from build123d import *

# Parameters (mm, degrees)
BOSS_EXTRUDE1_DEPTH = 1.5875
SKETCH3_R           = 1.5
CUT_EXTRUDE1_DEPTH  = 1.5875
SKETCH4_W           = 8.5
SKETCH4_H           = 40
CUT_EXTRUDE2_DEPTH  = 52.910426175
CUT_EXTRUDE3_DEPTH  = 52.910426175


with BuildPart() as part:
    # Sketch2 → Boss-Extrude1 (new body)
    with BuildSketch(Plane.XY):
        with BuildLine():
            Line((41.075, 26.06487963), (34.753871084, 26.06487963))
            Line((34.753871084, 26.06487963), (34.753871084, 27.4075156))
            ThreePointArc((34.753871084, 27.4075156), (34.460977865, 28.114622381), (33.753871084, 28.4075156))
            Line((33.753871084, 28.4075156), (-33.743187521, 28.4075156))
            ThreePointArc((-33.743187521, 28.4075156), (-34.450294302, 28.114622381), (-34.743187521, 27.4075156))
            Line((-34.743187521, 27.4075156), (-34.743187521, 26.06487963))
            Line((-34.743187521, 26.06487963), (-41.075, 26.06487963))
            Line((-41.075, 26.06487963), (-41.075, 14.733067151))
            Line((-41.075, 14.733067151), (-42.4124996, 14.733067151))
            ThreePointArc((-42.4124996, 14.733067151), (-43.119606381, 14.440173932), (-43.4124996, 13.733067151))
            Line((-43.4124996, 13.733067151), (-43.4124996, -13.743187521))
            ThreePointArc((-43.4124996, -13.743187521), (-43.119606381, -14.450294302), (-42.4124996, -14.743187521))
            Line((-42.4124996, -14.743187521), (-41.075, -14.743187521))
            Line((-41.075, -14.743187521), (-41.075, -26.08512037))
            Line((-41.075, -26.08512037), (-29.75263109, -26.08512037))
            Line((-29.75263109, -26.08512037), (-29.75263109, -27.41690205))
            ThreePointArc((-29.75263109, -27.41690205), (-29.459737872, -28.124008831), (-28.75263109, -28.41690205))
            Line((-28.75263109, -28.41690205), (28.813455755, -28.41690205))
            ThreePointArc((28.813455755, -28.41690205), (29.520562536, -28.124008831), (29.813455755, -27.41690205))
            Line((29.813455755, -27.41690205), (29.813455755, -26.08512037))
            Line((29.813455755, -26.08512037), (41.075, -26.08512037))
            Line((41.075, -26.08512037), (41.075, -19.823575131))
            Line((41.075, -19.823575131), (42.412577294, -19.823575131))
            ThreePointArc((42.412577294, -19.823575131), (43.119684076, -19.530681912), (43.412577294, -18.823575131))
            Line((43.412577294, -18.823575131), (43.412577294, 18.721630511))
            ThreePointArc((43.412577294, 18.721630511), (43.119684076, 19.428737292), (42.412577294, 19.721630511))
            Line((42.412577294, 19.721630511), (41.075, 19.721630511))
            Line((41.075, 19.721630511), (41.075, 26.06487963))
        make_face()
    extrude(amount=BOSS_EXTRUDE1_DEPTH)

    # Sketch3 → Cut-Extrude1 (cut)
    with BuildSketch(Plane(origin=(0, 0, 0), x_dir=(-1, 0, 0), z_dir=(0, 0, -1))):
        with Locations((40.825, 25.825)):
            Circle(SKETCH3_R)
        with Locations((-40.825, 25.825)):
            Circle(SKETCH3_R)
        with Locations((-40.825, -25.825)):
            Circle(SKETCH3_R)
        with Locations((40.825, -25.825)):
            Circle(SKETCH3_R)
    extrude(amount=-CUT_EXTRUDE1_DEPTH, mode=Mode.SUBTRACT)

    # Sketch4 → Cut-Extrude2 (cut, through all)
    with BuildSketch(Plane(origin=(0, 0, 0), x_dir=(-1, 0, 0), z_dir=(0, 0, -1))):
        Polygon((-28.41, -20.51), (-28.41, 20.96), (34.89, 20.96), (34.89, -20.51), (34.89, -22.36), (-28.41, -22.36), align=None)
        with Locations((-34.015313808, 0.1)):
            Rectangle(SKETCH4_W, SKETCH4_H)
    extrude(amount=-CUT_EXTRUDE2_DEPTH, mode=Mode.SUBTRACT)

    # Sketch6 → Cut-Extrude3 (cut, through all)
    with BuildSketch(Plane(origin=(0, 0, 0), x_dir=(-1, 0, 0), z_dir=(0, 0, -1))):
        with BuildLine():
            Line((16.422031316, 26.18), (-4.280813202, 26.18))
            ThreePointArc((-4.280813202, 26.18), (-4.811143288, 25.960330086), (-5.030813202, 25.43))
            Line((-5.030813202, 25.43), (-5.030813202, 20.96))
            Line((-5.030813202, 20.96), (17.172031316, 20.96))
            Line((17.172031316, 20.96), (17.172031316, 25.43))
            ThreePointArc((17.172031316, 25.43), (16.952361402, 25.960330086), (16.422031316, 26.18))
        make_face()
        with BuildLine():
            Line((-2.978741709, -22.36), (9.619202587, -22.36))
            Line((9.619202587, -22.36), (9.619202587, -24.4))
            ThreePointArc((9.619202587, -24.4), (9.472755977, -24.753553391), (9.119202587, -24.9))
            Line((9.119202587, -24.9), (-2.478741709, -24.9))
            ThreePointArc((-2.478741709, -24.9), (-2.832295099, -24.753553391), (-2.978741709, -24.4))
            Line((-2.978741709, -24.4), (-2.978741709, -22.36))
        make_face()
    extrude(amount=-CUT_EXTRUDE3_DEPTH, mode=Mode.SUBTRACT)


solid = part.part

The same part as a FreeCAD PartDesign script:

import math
import FreeCAD as App
import Part
import Sketcher
from FreeCAD import Vector


def add_polygon(sketch, points):
    """Adds a closed chain of lines whose ends are joined by coincident constraints."""
    first, n = sketch.GeometryCount, len(points)
    for a, b in zip(points, points[1:] + points[:1]):
        sketch.addGeometry(Part.LineSegment(App.Vector(*a, 0), App.Vector(*b, 0)), False)
    for i in range(n):
        sketch.addConstraint(Sketcher.Constraint("Coincident", first + i, 2, first + (i + 1) % n, 1))

doc = App.newDocument("Part")
body = doc.addObject("PartDesign::Body", "Body")

sketch1 = body.newObject("Sketcher::SketchObject", "Sketch")
sketch1.AttachmentSupport = (doc.getObject("XY_Plane"), [""])
sketch1.MapMode = "FlatFace"
sketch1.addGeometry([
    Part.LineSegment(Vector(41.1, 26.1, 0), Vector(34.8, 26.1, 0)),
    Part.LineSegment(Vector(34.8, 26.1, 0), Vector(34.8, 27.4, 0)),
    Part.ArcOfCircle(Part.Circle(Vector(33.8, 27.4, 0), Vector(0, 0, 1), 1), math.radians(0), math.radians(90)),
    Part.LineSegment(Vector(33.8, 28.4, 0), Vector(-33.7, 28.4, 0)),
    Part.ArcOfCircle(Part.Circle(Vector(-33.7, 27.4, 0), Vector(0, 0, 1), 1), math.radians(90), math.radians(180)),
    Part.LineSegment(Vector(-34.7, 27.4, 0), Vector(-34.7, 26.1, 0)),
    Part.LineSegment(Vector(-34.7, 26.1, 0), Vector(-41.1, 26.1, 0)),
    Part.LineSegment(Vector(-41.1, 26.1, 0), Vector(-41.1, 14.7, 0)),
    Part.LineSegment(Vector(-41.1, 14.7, 0), Vector(-42.4, 14.7, 0)),
    Part.ArcOfCircle(Part.Circle(Vector(-42.4, 13.7, 0), Vector(0, 0, 1), 1), math.radians(90), math.radians(180)),
    Part.LineSegment(Vector(-43.4, 13.7, 0), Vector(-43.4, -13.7, 0)),
    Part.ArcOfCircle(Part.Circle(Vector(-42.4, -13.7, 0), Vector(0, 0, 1), 1), math.radians(-180), math.radians(-90)),
    Part.LineSegment(Vector(-42.4, -14.7, 0), Vector(-41.1, -14.7, 0)),
    Part.LineSegment(Vector(-41.1, -14.7, 0), Vector(-41.1, -26.1, 0)),
    Part.LineSegment(Vector(-41.1, -26.1, 0), Vector(-29.8, -26.1, 0)),
    Part.LineSegment(Vector(-29.8, -26.1, 0), Vector(-29.8, -27.4, 0)),
    Part.ArcOfCircle(Part.Circle(Vector(-28.8, -27.4, 0), Vector(0, 0, 1), 1), math.radians(180), math.radians(270)),
    Part.LineSegment(Vector(-28.8, -28.4, 0), Vector(28.8, -28.4, 0)),
    Part.ArcOfCircle(Part.Circle(Vector(28.8, -27.4, 0), Vector(0, 0, 1), 1), math.radians(-90), math.radians(0)),
    Part.LineSegment(Vector(29.8, -27.4, 0), Vector(29.8, -26.1, 0)),
    Part.LineSegment(Vector(29.8, -26.1, 0), Vector(41.1, -26.1, 0)),
    Part.LineSegment(Vector(41.1, -26.1, 0), Vector(41.1, -19.8, 0)),
    Part.LineSegment(Vector(41.1, -19.8, 0), Vector(42.4, -19.8, 0)),
    Part.ArcOfCircle(Part.Circle(Vector(42.4, -18.8, 0), Vector(0, 0, 1), 1), math.radians(-90), math.radians(0)),
    Part.LineSegment(Vector(43.4, -18.8, 0), Vector(43.4, 18.7, 0)),
    Part.ArcOfCircle(Part.Circle(Vector(42.4, 18.7, 0), Vector(0, 0, 1), 1), math.radians(0), math.radians(90)),
    Part.LineSegment(Vector(42.4, 19.7, 0), Vector(41.1, 19.7, 0)),
    Part.LineSegment(Vector(41.1, 19.7, 0), Vector(41.1, 26.1, 0)),
], False)
sketch1.addConstraint([
    Sketcher.Constraint("Coincident", 0, 2, 1, 1),
    Sketcher.Constraint("Tangent", 1, 2, 2, 1),
    Sketcher.Constraint("Tangent", 2, 2, 3, 1),
    Sketcher.Constraint("Tangent", 3, 2, 4, 1),
    Sketcher.Constraint("Tangent", 4, 2, 5, 1),
    Sketcher.Constraint("Coincident", 5, 2, 6, 1),
    Sketcher.Constraint("Coincident", 6, 2, 7, 1),
    Sketcher.Constraint("Coincident", 7, 2, 8, 1),
    Sketcher.Constraint("Tangent", 8, 2, 9, 1),
    Sketcher.Constraint("Tangent", 9, 2, 10, 1),
    Sketcher.Constraint("Tangent", 10, 2, 11, 1),
    Sketcher.Constraint("Tangent", 11, 2, 12, 1),
    Sketcher.Constraint("Coincident", 12, 2, 13, 1),
    Sketcher.Constraint("Coincident", 13, 2, 14, 1),
    Sketcher.Constraint("Coincident", 14, 2, 15, 1),
    Sketcher.Constraint("Tangent", 15, 2, 16, 1),
    Sketcher.Constraint("Tangent", 16, 2, 17, 1),
    Sketcher.Constraint("Tangent", 17, 2, 18, 1),
    Sketcher.Constraint("Tangent", 18, 2, 19, 1),
    Sketcher.Constraint("Coincident", 19, 2, 20, 1),
    Sketcher.Constraint("Coincident", 20, 2, 21, 1),
    Sketcher.Constraint("Coincident", 21, 2, 22, 1),
    Sketcher.Constraint("Tangent", 22, 2, 23, 1),
    Sketcher.Constraint("Tangent", 23, 2, 24, 1),
    Sketcher.Constraint("Tangent", 24, 2, 25, 1),
    Sketcher.Constraint("Tangent", 25, 2, 26, 1),
    Sketcher.Constraint("Coincident", 26, 2, 27, 1),
    Sketcher.Constraint("Coincident", 27, 2, 0, 1),
    Sketcher.Constraint("Horizontal", 0),
    Sketcher.Constraint("Vertical", 1),
    Sketcher.Constraint("Horizontal", 3),
    Sketcher.Constraint("Vertical", 5),
    Sketcher.Constraint("Horizontal", 6),
    Sketcher.Constraint("Vertical", 7),
    Sketcher.Constraint("Horizontal", 8),
    Sketcher.Constraint("Vertical", 10),
    Sketcher.Constraint("Horizontal", 12),
    Sketcher.Constraint("Vertical", 13),
    Sketcher.Constraint("Horizontal", 14),
    Sketcher.Constraint("Vertical", 15),
    Sketcher.Constraint("Horizontal", 17),
    Sketcher.Constraint("Vertical", 19),
    Sketcher.Constraint("Horizontal", 20),
    Sketcher.Constraint("Vertical", 21),
    Sketcher.Constraint("Horizontal", 22),
    Sketcher.Constraint("Vertical", 24),
    Sketcher.Constraint("Horizontal", 26),
    Sketcher.Constraint("Vertical", 27),
    Sketcher.Constraint("Equal", 2, 4),
    Sketcher.Constraint("Equal", 4, 9),
    Sketcher.Constraint("Equal", 9, 11),
    Sketcher.Constraint("Equal", 11, 16),
    Sketcher.Constraint("Equal", 16, 18),
    Sketcher.Constraint("Equal", 18, 23),
    Sketcher.Constraint("Equal", 23, 25),
    Sketcher.Constraint("Symmetric", 13, 2, 20, 2, -2),
    Sketcher.Constraint("Symmetric", 6, 2, 27, 2, -2),
    Sketcher.Constraint("Vertical", 7, 2, 12, 2),
    Sketcher.Constraint("Radius", 2, 1.0),
    Sketcher.Constraint("DistanceX", 8, 2, 8, 1, 1.3375),
    Sketcher.Constraint("DistanceX", 6, 2, -1, 1, 41.075),
    Sketcher.Constraint("DistanceX", 0, 2, 0, 1, 6.321129),
    Sketcher.Constraint("DistanceX", 3, 2, 3, 1, 67.497059),
    Sketcher.Constraint("DistanceX", 14, 1, 14, 2, 11.322369),
    Sketcher.Constraint("DistanceY", 15, 2, 15, 1, 1.331782),
    Sketcher.Constraint("DistanceY", 27, 1, 27, 2, 6.343249),
    Sketcher.Constraint("DistanceX", 17, 1, 17, 2, 57.566087),
    Sketcher.Constraint("DistanceX", 22, 1, 22, 2, 1.337577),
    Sketcher.Constraint("DistanceY", 1, 1, 1, 2, 1.342636),
    Sketcher.Constraint("DistanceY", 7, 2, 7, 1, 11.331812),
    Sketcher.Constraint("DistanceY", 10, 2, 10, 1, 27.476255),
    Sketcher.Constraint("DistanceY", 13, 2, 13, 1, 11.341933),
    Sketcher.Constraint("DistanceY", 21, 1, 21, 2, 6.261545),
    Sketcher.Constraint("DistanceY", -1, 1, 25, 3, 18.721631),
])
pad1 = body.newObject("PartDesign::Pad", "Pad")
pad1.Profile = sketch1
pad1.Length = 1.5875

sketch2 = body.newObject("Sketcher::SketchObject", "Sketch001")
sketch2.AttachmentSupport = (doc.getObject("XY_Plane"), [""])
sketch2.MapMode = "FlatFace"
sketch2.addGeometry([
    Part.Circle(Vector(-40.8, 25.8, 0), Vector(0, 0, 1), 1.5),
    Part.Circle(Vector(40.8, 25.8, 0), Vector(0, 0, 1), 1.5),
    Part.Circle(Vector(40.8, -25.8, 0), Vector(0, 0, 1), 1.5),
    Part.Circle(Vector(-40.8, -25.8, 0), Vector(0, 0, 1), 1.5),
], False)
sketch2.addConstraint([
    Sketcher.Constraint("Equal", 0, 1),
    Sketcher.Constraint("Equal", 1, 2),
    Sketcher.Constraint("Equal", 2, 3),
    Sketcher.Constraint("Symmetric", 0, 3, 2, 3, -1, 1),
    Sketcher.Constraint("Symmetric", 1, 3, 3, 3, -1, 1),
    Sketcher.Constraint("Symmetric", 0, 3, 1, 3, -2),
    Sketcher.Constraint("Diameter", 0, 3.0),
    Sketcher.Constraint("DistanceX", 0, 3, 1, 3, 81.65),
    Sketcher.Constraint("DistanceY", 2, 3, 1, 3, 51.65),
])
pocket1 = body.newObject("PartDesign::Pocket", "Pocket")
pocket1.Profile = sketch2
pocket1.Length = 1.5875
pocket1.Reversed = True

sketch3 = body.newObject("Sketcher::SketchObject", "Sketch002")
sketch3.AttachmentSupport = (doc.getObject("XY_Plane"), [""])
sketch3.MapMode = "FlatFace"
add_polygon(sketch3, [(28, 21), (28, -22), (-35, -22), (-35, 21)])
add_polygon(sketch3, [(38, 20), (38, -20), (30, -20), (30, 20)])
sketch3.addConstraint([
    Sketcher.Constraint("Vertical", 0),
    Sketcher.Constraint("Horizontal", 1),
    Sketcher.Constraint("Vertical", 2),
    Sketcher.Constraint("Horizontal", 3),
    Sketcher.Constraint("Vertical", 4),
    Sketcher.Constraint("Horizontal", 5),
    Sketcher.Constraint("Vertical", 6),
    Sketcher.Constraint("Horizontal", 7),
    Sketcher.Constraint("DistanceY", 4, 2, 4, 1, 40.0),
    Sketcher.Constraint("DistanceX", 1, 2, 1, 1, 63.3),
    Sketcher.Constraint("DistanceX", 5, 2, 5, 1, 8.5),
    Sketcher.Constraint("DistanceY", 0, 2, 0, 1, 43.32),
    Sketcher.Constraint("DistanceY", 4, 2, -1, 1, 19.9),
    Sketcher.Constraint("DistanceX", -1, 1, 0, 2, 28.41),
    Sketcher.Constraint("DistanceY", 0, 2, -1, 1, 22.36),
    Sketcher.Constraint("DistanceX", -1, 1, 4, 2, 38.265314),
])
pocket2 = body.newObject("PartDesign::Pocket", "Pocket001")
pocket2.Profile = sketch3
pocket2.Type = "ThroughAll"
pocket2.Reversed = True

sketch4 = body.newObject("Sketcher::SketchObject", "Sketch003")
sketch4.AttachmentSupport = (doc.getObject("XY_Plane"), [""])
sketch4.MapMode = "FlatFace"
sketch4.addGeometry([
    Part.LineSegment(Vector(-16.4, 26.2, 0), Vector(4.3, 26.2, 0)),
    Part.ArcOfCircle(Part.Circle(Vector(4.3, 25.4, 0), Vector(0, 0, 1), 0.8), math.radians(0), math.radians(90)),
    Part.LineSegment(Vector(5, 25.4, 0), Vector(5, 21, 0)),
    Part.LineSegment(Vector(5, 21, 0), Vector(-17.2, 21, 0)),
    Part.LineSegment(Vector(-17.2, 21, 0), Vector(-17.2, 25.4, 0)),
    Part.ArcOfCircle(Part.Circle(Vector(-16.4, 25.4, 0), Vector(0, 0, 1), 0.8), math.radians(90), math.radians(180)),
    Part.LineSegment(Vector(-9.6, -22.4, 0), Vector(3, -22.4, 0)),
    Part.LineSegment(Vector(3, -22.4, 0), Vector(3, -24.4, 0)),
    Part.ArcOfCircle(Part.Circle(Vector(2.5, -24.4, 0), Vector(0, 0, 1), 0.5), math.radians(-90), math.radians(0)),
    Part.LineSegment(Vector(2.5, -24.9, 0), Vector(-9.1, -24.9, 0)),
    Part.ArcOfCircle(Part.Circle(Vector(-9.1, -24.4, 0), Vector(0, 0, 1), 0.5), math.radians(180), math.radians(270)),
    Part.LineSegment(Vector(-9.6, -24.4, 0), Vector(-9.6, -22.4, 0)),
], False)
sketch4.addConstraint([
    Sketcher.Constraint("Tangent", 0, 2, 1, 2),
    Sketcher.Constraint("Tangent", 1, 1, 2, 1),
    Sketcher.Constraint("Coincident", 2, 2, 3, 1),
    Sketcher.Constraint("Coincident", 3, 2, 4, 1),
    Sketcher.Constraint("Tangent", 4, 2, 5, 2),
    Sketcher.Constraint("Tangent", 5, 1, 0, 1),
    Sketcher.Constraint("Coincident", 6, 2, 7, 1),
    Sketcher.Constraint("Tangent", 7, 2, 8, 2),
    Sketcher.Constraint("Tangent", 8, 1, 9, 1),
    Sketcher.Constraint("Tangent", 9, 2, 10, 2),
    Sketcher.Constraint("Tangent", 10, 1, 11, 1),
    Sketcher.Constraint("Coincident", 11, 2, 6, 1),
    Sketcher.Constraint("Horizontal", 0),
    Sketcher.Constraint("Vertical", 2),
    Sketcher.Constraint("Horizontal", 3),
    Sketcher.Constraint("Vertical", 4),
    Sketcher.Constraint("Horizontal", 6),
    Sketcher.Constraint("Vertical", 7),
    Sketcher.Constraint("Horizontal", 9),
    Sketcher.Constraint("Vertical", 11),
    Sketcher.Constraint("Equal", 1, 5),
    Sketcher.Constraint("Equal", 8, 10),
    Sketcher.Constraint("Radius", 8, 0.5),
    Sketcher.Constraint("Radius", 1, 0.75),
    Sketcher.Constraint("DistanceY", 2, 2, 2, 1, 4.47),
    Sketcher.Constraint("DistanceY", 7, 2, 7, 1, 2.04),
    Sketcher.Constraint("DistanceY", 8, 3, -1, 1, 24.4),
    Sketcher.Constraint("DistanceY", -1, 1, 1, 3, 25.43),
    Sketcher.Constraint("DistanceX", 0, 1, 0, 2, 20.702845),
    Sketcher.Constraint("DistanceX", 6, 1, 6, 2, 12.597944),
    Sketcher.Constraint("DistanceX", 5, 3, -1, 1, 16.422031),
    Sketcher.Constraint("DistanceX", -1, 1, 8, 3, 2.478742),
])
pocket3 = body.newObject("PartDesign::Pocket", "Pocket002")
pocket3.Profile = sketch4
pocket3.Type = "ThroughAll"
pocket3.Reversed = True

doc.recompute()
